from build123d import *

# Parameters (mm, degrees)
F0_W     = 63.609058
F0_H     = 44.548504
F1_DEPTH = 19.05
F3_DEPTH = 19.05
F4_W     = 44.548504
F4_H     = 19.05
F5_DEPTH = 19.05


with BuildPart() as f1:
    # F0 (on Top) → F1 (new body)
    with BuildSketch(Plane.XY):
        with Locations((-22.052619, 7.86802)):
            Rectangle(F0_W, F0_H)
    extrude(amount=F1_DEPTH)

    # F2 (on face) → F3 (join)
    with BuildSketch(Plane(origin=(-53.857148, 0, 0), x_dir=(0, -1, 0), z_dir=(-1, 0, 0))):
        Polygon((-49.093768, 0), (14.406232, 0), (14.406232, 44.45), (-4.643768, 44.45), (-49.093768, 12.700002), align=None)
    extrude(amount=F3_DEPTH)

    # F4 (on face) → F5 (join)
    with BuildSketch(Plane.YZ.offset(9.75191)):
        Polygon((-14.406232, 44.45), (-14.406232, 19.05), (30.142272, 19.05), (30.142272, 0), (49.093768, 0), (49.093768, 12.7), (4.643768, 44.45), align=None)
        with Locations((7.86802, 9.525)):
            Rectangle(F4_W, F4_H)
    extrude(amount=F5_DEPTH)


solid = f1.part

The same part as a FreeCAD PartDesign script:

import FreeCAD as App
import Part
import Sketcher
Q = App.Units.Quantity

doc = App.newDocument("Part")
body = doc.addObject("PartDesign::Body", "Body")

# Sketch on XY plane
sketch1 = doc.addObject("Sketcher::SketchObject", "Sketch")
body.addObject(sketch1)
sketch1.AttachmentSupport = (doc.XY_Plane, [""])
sketch1.MapMode = "FlatFace"
sketch1.addGeometry([
    Part.LineSegment(App.Vector(-53.857148, 30.142272, 0), App.Vector(-53.857148, -14.406232, 0)),
    Part.LineSegment(App.Vector(-53.857148, -14.406232, 0), App.Vector(9.75191, -14.406232, 0)),
    Part.LineSegment(App.Vector(9.75191, -14.406232, 0), App.Vector(9.75191, 30.142272, 0)),
    Part.LineSegment(App.Vector(9.75191, 30.142272, 0), App.Vector(-53.857148, 30.142272, 0)),
], False)
sketch1.addConstraint([
    Sketcher.Constraint("Coincident", 0, 2, 1, 1),
    Sketcher.Constraint("Coincident", 1, 2, 2, 1),
    Sketcher.Constraint("Coincident", 2, 2, 3, 1),
    Sketcher.Constraint("Coincident", 3, 2, 0, 1),
    Sketcher.Constraint("Vertical", 0),
    Sketcher.Constraint("Horizontal", 1),
    Sketcher.Constraint("Vertical", 2),
    Sketcher.Constraint("Horizontal", 3),
    Sketcher.Constraint("DistanceX", 1, 1, 1, 2, 63.609058),
    Sketcher.Constraint("DistanceY", 0, 2, 0, 1, 44.548504),
    Sketcher.Constraint("DistanceX", 0, 2, -1, 1, 53.857148),
    Sketcher.Constraint("DistanceY", 0, 2, -1, 1, 14.406232),
])
pad1 = doc.addObject("PartDesign::Pad", "Pad")
body.addObject(pad1)
pad1.Profile = sketch1
pad1.Length = Q("0.75 in")

# Sketch on YZ plane
sketch2 = doc.addObject("Sketcher::SketchObject", "Sketch001")
body.addObject(sketch2)
sketch2.AttachmentSupport = (doc.YZ_Plane, [""])
sketch2.MapMode = "FlatFace"
sketch2.AttachmentOffset = App.Placement(App.Vector(0, 0, -53.857148), App.Rotation())
sketch2.addGeometry([
    Part.LineSegment(App.Vector(49.093768, 0, 0), App.Vector(-14.406232, 0, 0)),  # 0
    Part.LineSegment(App.Vector(-14.406232, 0, 0), App.Vector(-14.406232, 44.45, 0)),  # 1
    Part.LineSegment(App.Vector(-14.406232, 44.45, 0), App.Vector(4.643768, 44.45, 0)),  # 2
    Part.LineSegment(App.Vector(4.643768, 44.45, 0), App.Vector(49.093768, 12.700002, 0)),  # 3
    Part.LineSegment(App.Vector(49.093768, 12.700002, 0), App.Vector(49.093768, 0, 0)),  # 4
], False)
sketch2.addConstraint([
    Sketcher.Constraint("Coincident", 0, 2, 1, 1),
    Sketcher.Constraint("Coincident", 1, 2, 2, 1),
    Sketcher.Constraint("Coincident", 2, 2, 3, 1),
    Sketcher.Constraint("Coincident", 3, 2, 4, 1),
    Sketcher.Constraint("Coincident", 4, 2, 0, 1),
    Sketcher.Constraint("Horizontal", 0),
    Sketcher.Constraint("Vertical", 1),
    Sketcher.Constraint("Horizontal", 2),
    Sketcher.Constraint("Vertical", 4),
    Sketcher.Constraint("PointOnObject", 0, 2, -1),
    Sketcher.Constraint("DistanceX", 0, 2, 0, 1, Q("2.5 in")),
    Sketcher.Constraint("DistanceY", 4, 2, 4, 1, Q("0.5000001 in")),
    Sketcher.Constraint("DistanceX", 2, 1, 2, 2, Q("0.75 in")),
    Sketcher.Constraint("DistanceY", 1, 1, 1, 2, Q("1.75 in")),
    Sketcher.Constraint("DistanceX", 0, 2, -1, 1, 14.406232),
])
pad2 = doc.addObject("PartDesign::Pad", "Pad001")
body.addObject(pad2)
pad2.Profile = sketch2
pad2.Length = Q("0.75 in")
pad2.Reversed = True

# Sketch on YZ plane
sketch3 = doc.addObject("Sketcher::SketchObject", "Sketch002")
body.addObject(sketch3)
sketch3.AttachmentSupport = (doc.YZ_Plane, [""])
sketch3.MapMode = "FlatFace"
sketch3.AttachmentOffset = App.Placement(App.Vector(0, 0, 9.75191), App.Rotation())
sketch3.addGeometry([
    Part.LineSegment(App.Vector(-14.406232, 44.45, 0), App.Vector(-14.406232, 0, 0)),  # 0
    Part.LineSegment(App.Vector(-14.406232, 0, 0), App.Vector(49.093768, 0, 0)),  # 1
    Part.LineSegment(App.Vector(49.093768, 0, 0), App.Vector(49.093768, 12.7, 0)),  # 2
    Part.LineSegment(App.Vector(49.093768, 12.7, 0), App.Vector(4.643768, 44.45, 0)),  # 3
    Part.LineSegment(App.Vector(4.643768, 44.45, 0), App.Vector(-14.406232, 44.45, 0)),  # 4
], False)
sketch3.addConstraint([
    Sketcher.Constraint("Coincident", 0, 2, 1, 1),
    Sketcher.Constraint("Coincident", 1, 2, 2, 1),
    Sketcher.Constraint("Coincident", 2, 2, 3, 1),
    Sketcher.Constraint("Coincident", 3, 2, 4, 1),
    Sketcher.Constraint("Coincident", 4, 2, 0, 1),
    Sketcher.Constraint("Vertical", 0),
    Sketcher.Constraint("Horizontal", 1),
    Sketcher.Constraint("Vertical", 2),
    Sketcher.Constraint("Horizontal", 4),
    Sketcher.Constraint("PointOnObject", 0, 2, -1),
    Sketcher.Constraint("DistanceX", 1, 1, 1, 2, Q("2.5 in")),
    Sketcher.Constraint("DistanceY", 2, 1, 2, 2, Q("0.5 in")),
    Sketcher.Constraint("DistanceX", 4, 2, 4, 1, Q("0.75 in")),
    Sketcher.Constraint("DistanceY", 0, 2, 0, 1, Q("1.75 in")),
    Sketcher.Constraint("DistanceX", 0, 2, -1, 1, 14.406232),
])
pad3 = doc.addObject("PartDesign::Pad", "Pad002")
body.addObject(pad3)
pad3.Profile = sketch3
pad3.Length = Q("0.75 in")

doc.recompute()
